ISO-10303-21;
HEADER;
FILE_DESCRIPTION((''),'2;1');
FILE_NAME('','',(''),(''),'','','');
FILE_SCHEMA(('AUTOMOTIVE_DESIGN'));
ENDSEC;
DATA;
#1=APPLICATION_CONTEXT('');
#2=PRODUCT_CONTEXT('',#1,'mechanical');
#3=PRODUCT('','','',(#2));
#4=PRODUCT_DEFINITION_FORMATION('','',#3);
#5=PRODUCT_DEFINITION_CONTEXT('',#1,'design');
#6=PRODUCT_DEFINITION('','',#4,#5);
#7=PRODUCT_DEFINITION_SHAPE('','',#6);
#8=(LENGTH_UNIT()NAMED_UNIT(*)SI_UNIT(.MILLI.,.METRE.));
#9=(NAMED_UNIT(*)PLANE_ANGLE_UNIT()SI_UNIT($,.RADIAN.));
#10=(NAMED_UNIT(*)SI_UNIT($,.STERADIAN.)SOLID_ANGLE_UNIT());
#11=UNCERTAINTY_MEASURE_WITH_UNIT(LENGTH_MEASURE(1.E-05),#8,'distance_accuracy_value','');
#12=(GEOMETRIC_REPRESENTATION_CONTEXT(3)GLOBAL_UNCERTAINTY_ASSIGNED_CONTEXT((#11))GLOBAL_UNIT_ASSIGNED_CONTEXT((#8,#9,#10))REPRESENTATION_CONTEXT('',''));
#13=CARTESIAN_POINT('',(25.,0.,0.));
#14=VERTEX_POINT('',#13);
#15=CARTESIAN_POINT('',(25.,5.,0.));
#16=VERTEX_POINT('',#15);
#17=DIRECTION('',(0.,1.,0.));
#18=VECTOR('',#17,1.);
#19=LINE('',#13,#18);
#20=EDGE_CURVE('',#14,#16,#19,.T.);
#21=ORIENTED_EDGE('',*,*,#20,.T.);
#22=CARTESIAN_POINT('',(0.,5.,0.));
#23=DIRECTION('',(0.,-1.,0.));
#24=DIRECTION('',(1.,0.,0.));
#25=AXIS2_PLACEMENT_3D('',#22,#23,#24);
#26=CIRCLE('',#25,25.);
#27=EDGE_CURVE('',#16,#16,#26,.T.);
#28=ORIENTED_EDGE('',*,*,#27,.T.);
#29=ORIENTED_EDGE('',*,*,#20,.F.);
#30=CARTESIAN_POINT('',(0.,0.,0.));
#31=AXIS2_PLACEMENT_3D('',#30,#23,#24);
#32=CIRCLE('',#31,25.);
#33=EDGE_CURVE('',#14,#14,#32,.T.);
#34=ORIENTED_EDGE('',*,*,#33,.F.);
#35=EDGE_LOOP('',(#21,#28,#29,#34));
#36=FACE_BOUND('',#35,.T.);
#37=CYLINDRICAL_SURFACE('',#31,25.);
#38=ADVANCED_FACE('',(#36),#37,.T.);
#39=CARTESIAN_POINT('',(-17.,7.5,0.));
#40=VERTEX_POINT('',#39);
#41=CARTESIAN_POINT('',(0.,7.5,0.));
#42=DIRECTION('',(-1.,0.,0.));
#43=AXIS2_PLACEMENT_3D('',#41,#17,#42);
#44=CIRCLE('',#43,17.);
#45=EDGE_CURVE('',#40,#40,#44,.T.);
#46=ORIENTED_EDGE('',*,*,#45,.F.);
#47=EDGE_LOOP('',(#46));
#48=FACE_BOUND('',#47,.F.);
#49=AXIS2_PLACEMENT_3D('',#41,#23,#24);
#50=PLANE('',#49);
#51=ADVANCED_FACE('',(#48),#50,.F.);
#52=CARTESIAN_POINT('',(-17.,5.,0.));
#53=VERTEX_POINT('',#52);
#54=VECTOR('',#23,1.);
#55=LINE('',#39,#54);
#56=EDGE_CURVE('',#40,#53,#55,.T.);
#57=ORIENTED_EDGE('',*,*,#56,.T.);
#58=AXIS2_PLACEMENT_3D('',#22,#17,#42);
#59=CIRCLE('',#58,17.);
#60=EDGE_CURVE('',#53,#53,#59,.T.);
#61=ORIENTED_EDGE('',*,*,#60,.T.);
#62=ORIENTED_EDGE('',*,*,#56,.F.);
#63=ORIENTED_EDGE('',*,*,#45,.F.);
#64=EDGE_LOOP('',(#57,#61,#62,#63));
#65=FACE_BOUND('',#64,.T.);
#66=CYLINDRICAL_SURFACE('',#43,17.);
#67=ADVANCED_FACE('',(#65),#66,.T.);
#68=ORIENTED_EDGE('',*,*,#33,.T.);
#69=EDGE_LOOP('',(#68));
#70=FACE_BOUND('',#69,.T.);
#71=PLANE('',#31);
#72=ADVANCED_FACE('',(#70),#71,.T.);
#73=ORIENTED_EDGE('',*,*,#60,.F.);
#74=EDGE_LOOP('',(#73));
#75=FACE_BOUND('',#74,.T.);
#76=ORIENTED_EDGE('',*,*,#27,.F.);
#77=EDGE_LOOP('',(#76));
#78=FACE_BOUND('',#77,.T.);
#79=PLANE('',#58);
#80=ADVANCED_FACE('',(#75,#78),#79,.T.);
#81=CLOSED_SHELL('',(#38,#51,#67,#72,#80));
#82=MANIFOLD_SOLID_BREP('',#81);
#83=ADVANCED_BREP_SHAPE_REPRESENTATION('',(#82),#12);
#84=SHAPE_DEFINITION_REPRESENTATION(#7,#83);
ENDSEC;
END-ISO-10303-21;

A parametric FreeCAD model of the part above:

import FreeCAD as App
import Part
import Sketcher

V = App.Vector
Q = App.Units.Quantity

doc = App.newDocument("Part")
body = doc.addObject("PartDesign::Body", "Body")

# Sketch on XZ plane
sketch1 = body.newObject("Sketcher::SketchObject", "Sketch")
sketch1.AttachmentSupport = (doc.getObject("XZ_Plane"), [""])
sketch1.MapMode = "FlatFace"
sketch1.addGeometry(Part.Circle(V(0, 0, 0), V(0, 0, 1), 25), False)
sketch1.addConstraint(Sketcher.Constraint("Coincident", 0, 3, -1, 1))
sketch1.addConstraint(Sketcher.Constraint("Diameter", 0, Q("50 mm")))
pad1 = body.newObject("PartDesign::Pad", "Pad")
pad1.Profile = sketch1
pad1.Length = 7.5
pad1.Reversed = True

# Sketch on XZ plane
sketch2 = body.newObject("Sketcher::SketchObject", "Sketch001")
sketch2.AttachmentSupport = (doc.getObject("XZ_Plane"), [""])
sketch2.MapMode = "FlatFace"
sketch2.AttachmentOffset = App.Placement(V(0, 0, -7.5), App.Rotation())
sketch2.addGeometry(Part.Circle(V(0, 0, 0), V(0, 0, 1), 38), False)
sketch2.addGeometry(Part.Circle(V(0, 0, 0), V(0, 0, 1), 17), False)
sketch2.addConstraint(Sketcher.Constraint("Coincident", 0, 3, -1, 1))
sketch2.addConstraint(Sketcher.Constraint("Coincident", 1, 3, -1, 1))
sketch2.addConstraint(Sketcher.Constraint("Diameter", 1, Q("34 mm")))
sketch2.addConstraint(Sketcher.Constraint("Diameter", 0, Q("75.487364 mm")))
pocket1 = body.newObject("PartDesign::Pocket", "Pocket")
pocket1.Profile = sketch2
pocket1.Length = 2.5
pocket1.Reversed = True

doc.recompute()
